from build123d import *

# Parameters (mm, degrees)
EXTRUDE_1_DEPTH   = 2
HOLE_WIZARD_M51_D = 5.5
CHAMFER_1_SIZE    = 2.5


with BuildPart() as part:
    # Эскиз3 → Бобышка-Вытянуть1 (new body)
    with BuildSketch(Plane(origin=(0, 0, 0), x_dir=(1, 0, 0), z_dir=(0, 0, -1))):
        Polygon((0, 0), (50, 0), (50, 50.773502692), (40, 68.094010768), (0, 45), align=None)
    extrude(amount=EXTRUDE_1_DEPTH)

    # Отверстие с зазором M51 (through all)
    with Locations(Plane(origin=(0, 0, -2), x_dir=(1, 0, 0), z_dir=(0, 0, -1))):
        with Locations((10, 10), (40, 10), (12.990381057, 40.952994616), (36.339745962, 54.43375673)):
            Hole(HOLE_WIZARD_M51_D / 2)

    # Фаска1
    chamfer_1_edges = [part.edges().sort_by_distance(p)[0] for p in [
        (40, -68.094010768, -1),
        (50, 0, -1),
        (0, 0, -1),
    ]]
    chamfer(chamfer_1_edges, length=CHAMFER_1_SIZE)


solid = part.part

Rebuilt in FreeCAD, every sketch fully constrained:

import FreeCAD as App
import Part
import Sketcher
Q = App.Units.Quantity


def edges_at(feature, points):
    """Names of the edges that pass closest to the given points."""
    edges = feature.Shape.Edges
    near = lambda p: min(range(len(edges)), key=lambda i: edges[i].distToShape(Part.Vertex(*p))[0])
    return sorted({f"Edge{near(p) + 1}" for p in points})

doc = App.newDocument("Part")
body = doc.addObject("PartDesign::Body", "Body")

# Sketch on XY plane
sketch1 = doc.addObject("Sketcher::SketchObject", "Sketch")
body.addObject(sketch1)
sketch1.AttachmentSupport = (doc.XY_Plane, [""])
sketch1.MapMode = "FlatFace"
sketch1.addGeometry([
    Part.LineSegment(App.Vector(0, 0, 0), App.Vector(50, 0, 0)),  # 0
    Part.LineSegment(App.Vector(50, 0, 0), App.Vector(50, -50.773503, 0)),  # 1
    Part.LineSegment(App.Vector(50, -50.773503, 0), App.Vector(40, -68.094011, 0)),  # 2
    Part.LineSegment(App.Vector(40, -68.094011, 0), App.Vector(0, -45, 0)),  # 3
    Part.LineSegment(App.Vector(0, -45, 0), App.Vector(0, 0, 0)),  # 4
], False)
sketch1.addConstraint([
    Sketcher.Constraint("Coincident", 0, 2, 1, 1),
    Sketcher.Constraint("Coincident", 1, 2, 2, 1),
    Sketcher.Constraint("Coincident", 2, 2, 3, 1),
    Sketcher.Constraint("Coincident", 3, 2, 4, 1),
    Sketcher.Constraint("Coincident", 4, 2, 0, 1),
    Sketcher.Constraint("Horizontal", 0),
    Sketcher.Constraint("Vertical", 1),
    Sketcher.Constraint("Vertical", 4),
    Sketcher.Constraint("Coincident", 4, 2, -1, 1),
    Sketcher.Constraint("Perpendicular", 2, 3),
    Sketcher.Constraint("DistanceX", 0, 1, 0, 2, Q("50 mm")),
    Sketcher.Constraint("DistanceY", 4, 1, 4, 2, Q("45 mm")),
    Sketcher.Constraint("Angle", 2, Q("-120 deg")),
    Sketcher.Constraint("Distance", 2, Q("20 mm")),
])
pad1 = doc.addObject("PartDesign::Pad", "Pad")
body.addObject(pad1)
pad1.Profile = sketch1
pad1.Length = 2
pad1.Reversed = True

# Sketch on XY plane
sketch2 = doc.addObject("Sketcher::SketchObject", "Sketch001")
body.addObject(sketch2)
sketch2.AttachmentSupport = (doc.XY_Plane, [""])
sketch2.MapMode = "FlatFace"
sketch2.AttachmentOffset = App.Placement(App.Vector(0, 0, -2), App.Rotation())
sketch2.addGeometry([
    Part.Circle(App.Vector(10, -10, 0), App.Vector(0, 0, 1), 2.75),
    Part.Circle(App.Vector(40, -10, 0), App.Vector(0, 0, 1), 2.75),
    Part.Circle(App.Vector(12.990381, -40.952995, 0), App.Vector(0, 0, 1), 2.75),
    Part.Circle(App.Vector(36.339746, -54.433757, 0), App.Vector(0, 0, 1), 2.75),
], False)
sketch2.addConstraint([
    Sketcher.Constraint("Equal", 0, 1),
    Sketcher.Constraint("Equal", 1, 2),
    Sketcher.Constraint("Equal", 2, 3),
    Sketcher.Constraint("Horizontal", 0, 3, 1, 3),
    Sketcher.Constraint("Diameter", 0, Q("5.5 mm")),
    Sketcher.Constraint("DistanceX", -1, 1, 0, 3, Q("10 mm")),
    Sketcher.Constraint("DistanceY", 0, 3, -1, 1, Q("10 mm")),
    Sketcher.Constraint("DistanceX", -1, 1, 1, 3, Q("40 mm")),
    Sketcher.Constraint("DistanceX", -1, 1, 2, 3, Q("12.990381 mm")),
    Sketcher.Constraint("DistanceY", 2, 3, -1, 1, Q("40.952995 mm")),
    Sketcher.Constraint("DistanceX", -1, 1, 3, 3, Q("36.339746 mm")),
    Sketcher.Constraint("DistanceY", 3, 3, -1, 1, Q("54.433757 mm")),
])
doc.recompute()
hole = doc.addObject("PartDesign::Hole", "Hole")
body.addObject(hole)
hole.Profile = sketch2
hole.ThreadType = "None"
hole.Diameter = 5.5
hole.DepthType = "ThroughAll"
hole.Reversed = True
doc.recompute()

chamfer = doc.addObject("PartDesign::Chamfer", "Chamfer")
body.addObject(chamfer)
chamfer.Base = (hole, edges_at(hole, [(40, -68.094, -1), (50, 0, -1), (0, 0, -1)]))
chamfer.Size = 2.5

doc.recompute()
